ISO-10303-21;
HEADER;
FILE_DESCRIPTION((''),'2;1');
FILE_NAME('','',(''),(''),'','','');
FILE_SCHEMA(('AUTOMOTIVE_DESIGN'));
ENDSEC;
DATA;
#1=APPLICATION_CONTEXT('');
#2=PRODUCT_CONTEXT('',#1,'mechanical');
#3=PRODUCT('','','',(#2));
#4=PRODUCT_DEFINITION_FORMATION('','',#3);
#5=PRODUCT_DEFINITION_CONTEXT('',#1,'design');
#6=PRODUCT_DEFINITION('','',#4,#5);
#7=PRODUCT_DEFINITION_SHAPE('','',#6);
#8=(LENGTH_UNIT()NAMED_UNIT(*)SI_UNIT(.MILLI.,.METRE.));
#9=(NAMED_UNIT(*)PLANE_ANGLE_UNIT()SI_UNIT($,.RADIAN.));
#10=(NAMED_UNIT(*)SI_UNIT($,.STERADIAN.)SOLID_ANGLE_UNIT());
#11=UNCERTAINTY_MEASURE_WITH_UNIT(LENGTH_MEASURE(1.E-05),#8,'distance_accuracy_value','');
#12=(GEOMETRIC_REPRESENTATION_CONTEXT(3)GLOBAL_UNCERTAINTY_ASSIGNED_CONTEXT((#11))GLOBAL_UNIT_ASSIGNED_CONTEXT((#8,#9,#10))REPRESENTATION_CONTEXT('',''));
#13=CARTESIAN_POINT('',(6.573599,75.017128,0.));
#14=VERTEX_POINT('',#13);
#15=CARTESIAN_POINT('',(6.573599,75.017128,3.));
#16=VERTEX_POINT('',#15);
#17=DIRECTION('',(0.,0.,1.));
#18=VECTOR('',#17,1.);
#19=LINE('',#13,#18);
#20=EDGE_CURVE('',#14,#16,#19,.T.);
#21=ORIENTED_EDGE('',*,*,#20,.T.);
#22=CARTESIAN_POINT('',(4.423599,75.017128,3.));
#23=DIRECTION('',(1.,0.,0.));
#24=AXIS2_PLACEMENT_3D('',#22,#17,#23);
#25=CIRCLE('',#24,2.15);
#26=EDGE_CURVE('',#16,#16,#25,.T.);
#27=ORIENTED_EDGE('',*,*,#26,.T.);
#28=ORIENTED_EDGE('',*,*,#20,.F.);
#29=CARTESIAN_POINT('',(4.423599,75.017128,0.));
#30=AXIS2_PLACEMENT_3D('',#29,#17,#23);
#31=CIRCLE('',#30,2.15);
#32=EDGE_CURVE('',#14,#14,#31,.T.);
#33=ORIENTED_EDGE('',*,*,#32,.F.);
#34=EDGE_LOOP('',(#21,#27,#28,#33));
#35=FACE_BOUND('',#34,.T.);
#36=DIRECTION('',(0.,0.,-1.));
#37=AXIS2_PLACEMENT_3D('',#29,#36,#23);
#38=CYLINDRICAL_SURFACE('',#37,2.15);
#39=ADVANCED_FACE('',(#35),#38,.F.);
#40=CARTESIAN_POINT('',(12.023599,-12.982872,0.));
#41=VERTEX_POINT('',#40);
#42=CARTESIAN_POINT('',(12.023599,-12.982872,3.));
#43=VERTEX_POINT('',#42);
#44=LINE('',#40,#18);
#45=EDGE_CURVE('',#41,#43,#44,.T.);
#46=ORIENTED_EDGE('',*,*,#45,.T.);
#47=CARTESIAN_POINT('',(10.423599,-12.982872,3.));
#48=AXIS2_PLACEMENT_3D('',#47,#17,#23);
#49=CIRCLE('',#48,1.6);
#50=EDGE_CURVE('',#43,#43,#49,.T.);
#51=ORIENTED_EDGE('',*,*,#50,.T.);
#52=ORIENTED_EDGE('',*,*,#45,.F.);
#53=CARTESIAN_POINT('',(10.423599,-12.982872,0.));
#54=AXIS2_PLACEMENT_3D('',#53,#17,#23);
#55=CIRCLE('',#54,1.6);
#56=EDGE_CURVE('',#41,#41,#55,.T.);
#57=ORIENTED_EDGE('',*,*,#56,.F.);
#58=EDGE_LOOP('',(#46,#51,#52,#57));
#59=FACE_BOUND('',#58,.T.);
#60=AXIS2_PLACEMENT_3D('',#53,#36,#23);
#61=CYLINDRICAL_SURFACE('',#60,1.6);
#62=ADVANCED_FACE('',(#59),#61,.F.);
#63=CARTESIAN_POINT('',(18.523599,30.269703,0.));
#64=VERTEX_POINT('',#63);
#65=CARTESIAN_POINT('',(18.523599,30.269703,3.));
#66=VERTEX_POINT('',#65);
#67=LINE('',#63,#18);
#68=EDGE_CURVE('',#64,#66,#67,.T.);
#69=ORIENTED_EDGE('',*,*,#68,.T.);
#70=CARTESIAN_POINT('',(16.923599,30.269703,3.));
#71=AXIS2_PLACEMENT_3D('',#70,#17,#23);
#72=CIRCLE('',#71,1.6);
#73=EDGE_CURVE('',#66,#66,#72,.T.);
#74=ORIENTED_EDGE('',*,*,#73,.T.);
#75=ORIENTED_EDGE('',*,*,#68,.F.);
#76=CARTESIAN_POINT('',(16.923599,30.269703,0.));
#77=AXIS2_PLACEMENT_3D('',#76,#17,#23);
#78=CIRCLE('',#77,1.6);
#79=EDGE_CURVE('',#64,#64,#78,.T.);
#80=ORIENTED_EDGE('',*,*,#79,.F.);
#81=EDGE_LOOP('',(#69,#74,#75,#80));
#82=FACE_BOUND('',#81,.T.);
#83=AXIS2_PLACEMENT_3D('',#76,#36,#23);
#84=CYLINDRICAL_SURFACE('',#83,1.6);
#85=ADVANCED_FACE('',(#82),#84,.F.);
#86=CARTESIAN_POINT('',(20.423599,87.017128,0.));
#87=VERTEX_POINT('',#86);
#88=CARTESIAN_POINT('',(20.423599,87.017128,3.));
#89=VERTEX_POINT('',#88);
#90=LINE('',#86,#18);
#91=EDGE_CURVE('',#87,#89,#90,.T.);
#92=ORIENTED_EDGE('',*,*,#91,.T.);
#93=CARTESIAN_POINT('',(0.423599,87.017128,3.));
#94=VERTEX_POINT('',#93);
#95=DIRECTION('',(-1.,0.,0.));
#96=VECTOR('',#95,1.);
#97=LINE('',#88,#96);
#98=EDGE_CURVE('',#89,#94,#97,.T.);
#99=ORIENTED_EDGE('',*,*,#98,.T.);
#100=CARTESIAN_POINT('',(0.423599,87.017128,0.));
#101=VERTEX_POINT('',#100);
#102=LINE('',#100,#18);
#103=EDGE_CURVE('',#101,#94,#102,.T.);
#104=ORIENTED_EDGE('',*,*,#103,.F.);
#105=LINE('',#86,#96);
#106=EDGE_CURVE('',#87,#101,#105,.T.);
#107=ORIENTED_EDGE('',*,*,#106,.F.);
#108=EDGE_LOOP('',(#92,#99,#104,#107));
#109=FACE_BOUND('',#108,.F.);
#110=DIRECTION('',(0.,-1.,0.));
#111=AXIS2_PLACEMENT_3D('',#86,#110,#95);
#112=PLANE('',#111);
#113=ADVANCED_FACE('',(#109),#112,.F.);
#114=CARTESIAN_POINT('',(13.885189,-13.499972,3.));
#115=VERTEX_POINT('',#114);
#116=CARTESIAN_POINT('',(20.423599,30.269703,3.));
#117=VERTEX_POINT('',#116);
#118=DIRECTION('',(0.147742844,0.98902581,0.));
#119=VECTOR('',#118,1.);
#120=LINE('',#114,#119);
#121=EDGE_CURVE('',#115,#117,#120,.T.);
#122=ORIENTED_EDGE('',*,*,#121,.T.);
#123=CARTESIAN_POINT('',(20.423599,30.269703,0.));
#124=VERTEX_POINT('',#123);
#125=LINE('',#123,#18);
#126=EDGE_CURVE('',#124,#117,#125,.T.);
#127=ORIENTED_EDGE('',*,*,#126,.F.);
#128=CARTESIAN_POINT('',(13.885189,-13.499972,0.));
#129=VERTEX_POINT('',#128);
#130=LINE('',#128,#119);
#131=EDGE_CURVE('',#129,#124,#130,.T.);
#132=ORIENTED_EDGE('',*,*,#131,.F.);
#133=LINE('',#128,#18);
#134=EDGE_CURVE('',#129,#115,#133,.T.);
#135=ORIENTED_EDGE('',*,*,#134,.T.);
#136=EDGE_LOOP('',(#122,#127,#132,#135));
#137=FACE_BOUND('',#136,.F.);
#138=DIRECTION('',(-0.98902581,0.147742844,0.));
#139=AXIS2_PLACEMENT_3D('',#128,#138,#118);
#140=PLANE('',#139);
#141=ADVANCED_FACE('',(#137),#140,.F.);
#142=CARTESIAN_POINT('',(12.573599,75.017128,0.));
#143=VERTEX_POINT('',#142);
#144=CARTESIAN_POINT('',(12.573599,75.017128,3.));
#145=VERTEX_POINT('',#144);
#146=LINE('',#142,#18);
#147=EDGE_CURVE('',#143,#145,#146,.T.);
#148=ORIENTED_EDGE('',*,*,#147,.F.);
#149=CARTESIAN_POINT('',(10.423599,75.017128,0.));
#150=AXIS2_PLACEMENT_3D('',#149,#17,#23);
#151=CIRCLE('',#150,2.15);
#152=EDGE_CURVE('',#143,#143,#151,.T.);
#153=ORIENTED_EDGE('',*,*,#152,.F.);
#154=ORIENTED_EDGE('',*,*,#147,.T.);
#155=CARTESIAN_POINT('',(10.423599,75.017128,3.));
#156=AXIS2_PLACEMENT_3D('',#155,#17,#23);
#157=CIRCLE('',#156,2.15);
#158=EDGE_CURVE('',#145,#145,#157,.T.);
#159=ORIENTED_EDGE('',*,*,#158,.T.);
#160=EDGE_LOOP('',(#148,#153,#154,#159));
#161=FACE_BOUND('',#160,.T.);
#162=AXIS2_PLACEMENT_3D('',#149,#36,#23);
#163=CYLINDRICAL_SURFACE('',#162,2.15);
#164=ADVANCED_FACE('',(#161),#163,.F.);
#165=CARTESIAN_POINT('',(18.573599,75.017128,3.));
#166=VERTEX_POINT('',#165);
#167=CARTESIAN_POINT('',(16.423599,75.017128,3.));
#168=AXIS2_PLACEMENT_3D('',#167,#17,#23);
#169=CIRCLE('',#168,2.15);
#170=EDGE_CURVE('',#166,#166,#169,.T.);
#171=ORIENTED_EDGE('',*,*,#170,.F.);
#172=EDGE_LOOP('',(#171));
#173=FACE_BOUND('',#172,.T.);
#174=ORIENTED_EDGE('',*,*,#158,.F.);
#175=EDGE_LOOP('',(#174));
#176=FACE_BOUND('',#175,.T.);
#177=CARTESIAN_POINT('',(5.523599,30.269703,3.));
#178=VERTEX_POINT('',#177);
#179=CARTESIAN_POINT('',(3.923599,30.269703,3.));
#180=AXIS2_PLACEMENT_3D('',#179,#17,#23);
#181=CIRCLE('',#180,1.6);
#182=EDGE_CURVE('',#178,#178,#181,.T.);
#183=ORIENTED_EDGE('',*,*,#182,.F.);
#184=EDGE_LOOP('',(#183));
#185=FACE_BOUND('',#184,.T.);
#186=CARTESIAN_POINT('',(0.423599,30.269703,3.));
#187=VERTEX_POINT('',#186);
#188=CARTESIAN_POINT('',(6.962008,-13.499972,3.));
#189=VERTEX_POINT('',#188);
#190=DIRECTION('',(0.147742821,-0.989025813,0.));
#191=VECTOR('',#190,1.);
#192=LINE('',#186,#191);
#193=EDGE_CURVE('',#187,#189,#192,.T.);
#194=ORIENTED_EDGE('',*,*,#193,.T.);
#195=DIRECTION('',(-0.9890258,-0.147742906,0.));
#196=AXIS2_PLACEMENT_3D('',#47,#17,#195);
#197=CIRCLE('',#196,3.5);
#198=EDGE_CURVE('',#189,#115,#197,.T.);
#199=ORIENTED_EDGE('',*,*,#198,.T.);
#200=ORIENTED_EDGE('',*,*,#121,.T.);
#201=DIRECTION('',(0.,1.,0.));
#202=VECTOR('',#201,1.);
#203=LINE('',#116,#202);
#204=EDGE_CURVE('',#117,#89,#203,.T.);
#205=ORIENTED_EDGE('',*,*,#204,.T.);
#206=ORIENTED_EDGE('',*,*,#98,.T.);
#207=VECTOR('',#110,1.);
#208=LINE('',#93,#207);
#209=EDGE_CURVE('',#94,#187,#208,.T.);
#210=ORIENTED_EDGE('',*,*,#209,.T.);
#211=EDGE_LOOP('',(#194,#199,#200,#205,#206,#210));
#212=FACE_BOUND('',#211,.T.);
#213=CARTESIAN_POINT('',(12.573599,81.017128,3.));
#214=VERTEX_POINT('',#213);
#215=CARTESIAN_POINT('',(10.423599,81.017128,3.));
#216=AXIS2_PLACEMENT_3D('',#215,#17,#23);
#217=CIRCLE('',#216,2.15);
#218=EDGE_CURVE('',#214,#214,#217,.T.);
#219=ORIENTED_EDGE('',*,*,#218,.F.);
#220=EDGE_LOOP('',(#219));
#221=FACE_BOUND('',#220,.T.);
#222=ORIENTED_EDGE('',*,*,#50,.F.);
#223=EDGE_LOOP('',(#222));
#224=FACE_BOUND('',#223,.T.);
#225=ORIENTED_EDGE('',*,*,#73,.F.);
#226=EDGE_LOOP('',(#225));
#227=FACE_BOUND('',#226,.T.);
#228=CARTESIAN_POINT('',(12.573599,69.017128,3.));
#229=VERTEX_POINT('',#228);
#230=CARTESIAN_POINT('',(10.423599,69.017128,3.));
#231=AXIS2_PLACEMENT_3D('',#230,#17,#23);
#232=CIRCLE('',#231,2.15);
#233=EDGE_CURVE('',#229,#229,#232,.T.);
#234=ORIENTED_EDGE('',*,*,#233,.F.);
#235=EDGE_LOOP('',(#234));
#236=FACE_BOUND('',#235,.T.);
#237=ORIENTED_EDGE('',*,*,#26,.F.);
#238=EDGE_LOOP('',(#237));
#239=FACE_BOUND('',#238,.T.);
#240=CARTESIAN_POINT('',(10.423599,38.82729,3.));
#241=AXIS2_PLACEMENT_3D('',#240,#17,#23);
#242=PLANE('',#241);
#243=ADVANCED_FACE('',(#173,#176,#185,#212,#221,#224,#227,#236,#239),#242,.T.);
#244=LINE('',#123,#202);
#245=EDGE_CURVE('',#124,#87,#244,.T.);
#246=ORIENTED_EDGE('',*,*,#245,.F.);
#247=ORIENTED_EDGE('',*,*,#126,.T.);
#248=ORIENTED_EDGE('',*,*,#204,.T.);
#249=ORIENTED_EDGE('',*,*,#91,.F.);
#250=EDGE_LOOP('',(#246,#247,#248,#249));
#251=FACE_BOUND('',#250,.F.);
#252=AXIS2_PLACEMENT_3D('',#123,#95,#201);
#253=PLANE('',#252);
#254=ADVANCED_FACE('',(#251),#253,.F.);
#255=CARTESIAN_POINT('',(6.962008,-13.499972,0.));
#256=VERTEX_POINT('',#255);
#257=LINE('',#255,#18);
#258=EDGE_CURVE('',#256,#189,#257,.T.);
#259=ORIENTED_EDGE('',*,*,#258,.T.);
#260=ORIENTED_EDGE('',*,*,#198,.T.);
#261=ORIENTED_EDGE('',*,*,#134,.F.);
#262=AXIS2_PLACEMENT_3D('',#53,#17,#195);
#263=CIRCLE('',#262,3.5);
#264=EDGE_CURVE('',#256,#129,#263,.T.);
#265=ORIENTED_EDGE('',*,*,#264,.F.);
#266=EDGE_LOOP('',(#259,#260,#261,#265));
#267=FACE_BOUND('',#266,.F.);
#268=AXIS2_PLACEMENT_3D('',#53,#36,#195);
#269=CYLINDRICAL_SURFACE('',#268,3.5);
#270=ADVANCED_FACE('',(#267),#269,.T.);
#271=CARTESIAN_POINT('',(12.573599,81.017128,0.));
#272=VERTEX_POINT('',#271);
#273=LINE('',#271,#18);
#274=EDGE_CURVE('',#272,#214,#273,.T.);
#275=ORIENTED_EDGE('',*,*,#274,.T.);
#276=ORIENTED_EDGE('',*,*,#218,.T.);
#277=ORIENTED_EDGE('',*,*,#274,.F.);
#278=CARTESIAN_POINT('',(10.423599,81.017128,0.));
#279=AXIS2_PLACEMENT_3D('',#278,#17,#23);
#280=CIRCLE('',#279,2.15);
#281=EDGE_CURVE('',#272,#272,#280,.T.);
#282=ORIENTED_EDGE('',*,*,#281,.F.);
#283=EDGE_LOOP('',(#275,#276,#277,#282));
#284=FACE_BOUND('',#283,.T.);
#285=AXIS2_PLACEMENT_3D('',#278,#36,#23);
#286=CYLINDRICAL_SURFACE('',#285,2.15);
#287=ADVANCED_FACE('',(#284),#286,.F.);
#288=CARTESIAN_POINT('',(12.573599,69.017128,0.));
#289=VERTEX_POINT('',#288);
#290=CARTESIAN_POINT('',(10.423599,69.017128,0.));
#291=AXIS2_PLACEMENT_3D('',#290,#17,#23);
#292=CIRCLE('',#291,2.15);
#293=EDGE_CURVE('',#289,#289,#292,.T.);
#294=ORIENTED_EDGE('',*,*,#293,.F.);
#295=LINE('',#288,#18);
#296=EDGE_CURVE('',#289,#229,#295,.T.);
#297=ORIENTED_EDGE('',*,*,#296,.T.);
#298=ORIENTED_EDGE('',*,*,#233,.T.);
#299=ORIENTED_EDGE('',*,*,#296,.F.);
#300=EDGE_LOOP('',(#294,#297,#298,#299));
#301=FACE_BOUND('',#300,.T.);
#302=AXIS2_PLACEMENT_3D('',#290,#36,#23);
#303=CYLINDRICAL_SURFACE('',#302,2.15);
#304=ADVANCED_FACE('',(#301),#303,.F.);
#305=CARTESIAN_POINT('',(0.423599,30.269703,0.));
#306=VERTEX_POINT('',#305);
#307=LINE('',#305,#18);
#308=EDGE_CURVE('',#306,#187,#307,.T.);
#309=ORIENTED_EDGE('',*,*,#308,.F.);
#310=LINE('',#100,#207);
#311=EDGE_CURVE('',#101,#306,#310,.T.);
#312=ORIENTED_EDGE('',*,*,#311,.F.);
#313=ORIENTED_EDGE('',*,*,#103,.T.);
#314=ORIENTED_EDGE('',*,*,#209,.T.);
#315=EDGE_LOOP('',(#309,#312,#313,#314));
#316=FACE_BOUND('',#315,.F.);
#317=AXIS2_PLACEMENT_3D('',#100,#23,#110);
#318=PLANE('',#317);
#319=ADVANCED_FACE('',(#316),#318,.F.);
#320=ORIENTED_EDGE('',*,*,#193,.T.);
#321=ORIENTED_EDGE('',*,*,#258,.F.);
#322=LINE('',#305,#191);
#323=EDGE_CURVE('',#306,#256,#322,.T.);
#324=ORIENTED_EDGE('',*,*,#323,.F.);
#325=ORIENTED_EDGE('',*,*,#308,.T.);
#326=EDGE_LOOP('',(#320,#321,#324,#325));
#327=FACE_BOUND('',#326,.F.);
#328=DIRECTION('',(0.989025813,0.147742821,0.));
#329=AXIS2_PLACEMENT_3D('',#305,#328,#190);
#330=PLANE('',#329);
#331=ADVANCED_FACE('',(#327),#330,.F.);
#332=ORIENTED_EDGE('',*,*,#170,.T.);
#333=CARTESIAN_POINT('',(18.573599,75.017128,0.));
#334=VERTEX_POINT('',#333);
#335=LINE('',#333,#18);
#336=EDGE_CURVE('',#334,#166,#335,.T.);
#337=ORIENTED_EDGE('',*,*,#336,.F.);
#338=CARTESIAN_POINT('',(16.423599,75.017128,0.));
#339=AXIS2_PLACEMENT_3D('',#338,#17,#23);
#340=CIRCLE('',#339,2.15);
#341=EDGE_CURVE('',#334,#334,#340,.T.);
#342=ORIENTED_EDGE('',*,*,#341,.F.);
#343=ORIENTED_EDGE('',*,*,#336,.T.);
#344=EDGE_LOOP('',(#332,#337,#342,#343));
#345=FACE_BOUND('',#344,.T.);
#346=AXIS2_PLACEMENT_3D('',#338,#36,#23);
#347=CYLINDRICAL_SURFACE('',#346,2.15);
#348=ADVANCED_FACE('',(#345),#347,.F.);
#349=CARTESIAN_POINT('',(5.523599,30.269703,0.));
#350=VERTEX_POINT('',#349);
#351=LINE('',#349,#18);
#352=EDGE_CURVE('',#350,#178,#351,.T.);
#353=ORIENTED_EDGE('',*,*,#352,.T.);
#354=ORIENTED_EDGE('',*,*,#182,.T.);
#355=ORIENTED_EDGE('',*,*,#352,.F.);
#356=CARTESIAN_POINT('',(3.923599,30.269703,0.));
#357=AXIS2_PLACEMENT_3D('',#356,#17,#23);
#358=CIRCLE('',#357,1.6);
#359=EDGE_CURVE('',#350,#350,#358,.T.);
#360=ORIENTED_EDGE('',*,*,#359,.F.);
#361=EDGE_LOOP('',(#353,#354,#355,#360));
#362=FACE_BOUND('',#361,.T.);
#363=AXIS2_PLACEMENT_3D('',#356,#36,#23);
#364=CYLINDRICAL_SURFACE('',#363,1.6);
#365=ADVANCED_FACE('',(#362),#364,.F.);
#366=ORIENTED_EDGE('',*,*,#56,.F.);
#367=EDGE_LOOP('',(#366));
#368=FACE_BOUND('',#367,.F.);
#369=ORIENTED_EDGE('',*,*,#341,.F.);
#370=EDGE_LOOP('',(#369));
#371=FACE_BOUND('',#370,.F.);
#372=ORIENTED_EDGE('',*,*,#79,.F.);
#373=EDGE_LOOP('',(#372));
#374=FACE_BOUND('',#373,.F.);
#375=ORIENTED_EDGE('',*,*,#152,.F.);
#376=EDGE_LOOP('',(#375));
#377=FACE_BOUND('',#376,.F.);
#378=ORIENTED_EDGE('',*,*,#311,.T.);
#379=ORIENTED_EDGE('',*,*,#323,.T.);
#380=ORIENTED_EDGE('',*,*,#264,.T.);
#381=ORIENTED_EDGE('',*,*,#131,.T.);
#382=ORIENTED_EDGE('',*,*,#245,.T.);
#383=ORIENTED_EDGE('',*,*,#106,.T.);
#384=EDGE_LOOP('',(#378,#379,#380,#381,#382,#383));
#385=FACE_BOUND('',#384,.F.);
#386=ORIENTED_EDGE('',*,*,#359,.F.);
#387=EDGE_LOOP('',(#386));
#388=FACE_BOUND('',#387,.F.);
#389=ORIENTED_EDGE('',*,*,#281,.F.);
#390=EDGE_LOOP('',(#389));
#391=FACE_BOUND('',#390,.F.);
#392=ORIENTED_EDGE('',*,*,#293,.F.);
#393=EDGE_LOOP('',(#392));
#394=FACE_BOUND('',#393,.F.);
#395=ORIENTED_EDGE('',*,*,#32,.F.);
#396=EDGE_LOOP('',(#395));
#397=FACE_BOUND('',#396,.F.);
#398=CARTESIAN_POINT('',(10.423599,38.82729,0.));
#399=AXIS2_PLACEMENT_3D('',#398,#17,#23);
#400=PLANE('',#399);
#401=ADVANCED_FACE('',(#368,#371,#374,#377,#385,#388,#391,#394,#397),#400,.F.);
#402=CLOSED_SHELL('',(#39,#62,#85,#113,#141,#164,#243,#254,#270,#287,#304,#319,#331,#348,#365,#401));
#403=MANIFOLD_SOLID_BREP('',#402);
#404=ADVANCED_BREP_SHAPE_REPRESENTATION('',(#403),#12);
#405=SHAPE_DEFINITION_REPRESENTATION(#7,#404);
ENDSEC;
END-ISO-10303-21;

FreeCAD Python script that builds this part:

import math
import FreeCAD as App
import Part
import Sketcher

V = App.Vector
Q = App.Units.Quantity

doc = App.newDocument("Part")
body = doc.addObject("PartDesign::Body", "Body")

# Sketch on XY plane
sketch1 = doc.addObject("Sketcher::SketchObject", "Sketch")
body.addObject(sketch1)
sketch1.AttachmentSupport = (doc.XY_Plane, [""])
sketch1.MapMode = "FlatFace"
sketch1.addGeometry(Part.LineSegment(V(0.423599, 87.017128, 0), V(0.423599, 30.269703, 0)), False)
sketch1.addGeometry(Part.LineSegment(V(0.423599, 30.269703, 0), V(6.962008, -13.499972, 0)), False)
sketch1.addGeometry(Part.ArcOfCircle(Part.Circle(V(10.423599, -12.982872, 0), V(0, 0, 1), 3.5), math.radians(-171.503853), math.radians(-8.496147)), False)
sketch1.addGeometry(Part.LineSegment(V(13.885189, -13.499972, 0), V(20.423599, 30.269703, 0)), False)
sketch1.addGeometry(Part.LineSegment(V(20.423599, 30.269703, 0), V(20.423599, 87.017128, 0)), False)
sketch1.addGeometry(Part.LineSegment(V(20.423599, 87.017128, 0), V(0.423599, 87.017128, 0)), False)
sketch1.addGeometry(Part.Circle(V(3.923599, 30.269703, 0), V(0, 0, 1), 1.6), False)
sketch1.addGeometry(Part.Circle(V(10.423599, -12.982872, 0), V(0, 0, 1), 1.6), False)
sketch1.addGeometry(Part.Circle(V(16.923599, 30.269703, 0), V(0, 0, 1), 1.6), False)
sketch1.addGeometry(Part.Circle(V(4.423599, 75.017128, 0), V(0, 0, 1), 2.15), False)
sketch1.addGeometry(Part.Circle(V(10.423599, 69.017128, 0), V(0, 0, 1), 2.15), False)
sketch1.addGeometry(Part.Circle(V(10.423599, 75.017128, 0), V(0, 0, 1), 2.15), False)
sketch1.addGeometry(Part.Circle(V(10.423599, 81.017128, 0), V(0, 0, 1), 2.15), False)
sketch1.addGeometry(Part.Circle(V(16.423599, 75.017128, 0), V(0, 0, 1), 2.15), False)
sketch1.addConstraint(Sketcher.Constraint("Coincident", 0, 2, 1, 1))
sketch1.addConstraint(Sketcher.Constraint("Tangent", 1, 2, 2, 1))
sketch1.addConstraint(Sketcher.Constraint("Tangent", 2, 2, 3, 1))
sketch1.addConstraint(Sketcher.Constraint("Coincident", 3, 2, 4, 1))
sketch1.addConstraint(Sketcher.Constraint("Coincident", 4, 2, 5, 1))
sketch1.addConstraint(Sketcher.Constraint("Coincident", 5, 2, 0, 1))
sketch1.addConstraint(Sketcher.Constraint("Vertical", 0))
sketch1.addConstraint(Sketcher.Constraint("Vertical", 4))
sketch1.addConstraint(Sketcher.Constraint("Horizontal", 5))
sketch1.addConstraint(Sketcher.Constraint("Coincident", 7, 3, 2, 3))
sketch1.addConstraint(Sketcher.Constraint("Equal", 6, 7))
sketch1.addConstraint(Sketcher.Constraint("Equal", 7, 8))
sketch1.addConstraint(Sketcher.Constraint("Equal", 9, 10))
sketch1.addConstraint(Sketcher.Constraint("Equal", 10, 11))
sketch1.addConstraint(Sketcher.Constraint("Equal", 11, 12))
sketch1.addConstraint(Sketcher.Constraint("Equal", 12, 13))
sketch1.addConstraint(Sketcher.Constraint("Horizontal", 6, 3, 8, 3))
sketch1.addConstraint(Sketcher.Constraint("Horizontal", 9, 3, 11, 3))
sketch1.addConstraint(Sketcher.Constraint("Horizontal", 11, 3, 13, 3))
sketch1.addConstraint(Sketcher.Constraint("Horizontal", 8, 3, 0, 2))
sketch1.addConstraint(Sketcher.Constraint("Horizontal", 1, 2, 2, 2))
sketch1.addConstraint(Sketcher.Constraint("Horizontal", 0, 2, 3, 2))
sketch1.addConstraint(Sketcher.Constraint("Vertical", 7, 3, 10, 3))
sketch1.addConstraint(Sketcher.Constraint("Vertical", 10, 3, 11, 3))
sketch1.addConstraint(Sketcher.Constraint("Vertical", 11, 3, 12, 3))
sketch1.addConstraint(Sketcher.Constraint("Diameter", 6, Q("3.2 mm")))
sketch1.addConstraint(Sketcher.Constraint("Diameter", 9, Q("4.3 mm")))
sketch1.addConstraint(Sketcher.Constraint("Radius", 2, Q("3.5 mm")))
sketch1.addConstraint(Sketcher.Constraint("DistanceX", 5, 2, 5, 1, Q("20 mm")))
sketch1.addConstraint(Sketcher.Constraint("DistanceX", 6, 3, 8, 3, Q("13 mm")))
sketch1.addConstraint(Sketcher.Constraint("DistanceX", 9, 3, 2, 3, Q("6 mm")))
sketch1.addConstraint(Sketcher.Constraint("DistanceY", 2, 3, 9, 3, Q("88 mm")))
sketch1.addConstraint(Sketcher.Constraint("DistanceY", 10, 3, 9, 3, Q("6 mm")))
sketch1.addConstraint(Sketcher.Constraint("DistanceY", 11, 3, 12, 3, Q("6 mm")))
sketch1.addConstraint(Sketcher.Constraint("DistanceX", 11, 3, 13, 3, Q("6 mm")))
sketch1.addConstraint(Sketcher.Constraint("DistanceY", 12, 3, 4, 2, Q("6 mm")))
sketch1.addConstraint(Sketcher.Constraint("DistanceX", 6, 3, 2, 3, Q("6.5 mm")))
sketch1.addConstraint(Sketcher.Constraint("DistanceX", -1, 1, 2, 3, Q("10.423599 mm")))
sketch1.addConstraint(Sketcher.Constraint("DistanceY", 1, 2, 2, 3, Q("0.5171 mm")))
sketch1.addConstraint(Sketcher.Constraint("DistanceY", 2, 3, -1, 1, Q("12.982872 mm")))
pad1 = doc.addObject("PartDesign::Pad", "Pad")
body.addObject(pad1)
pad1.Profile = sketch1
pad1.Length = 3

doc.recompute()
